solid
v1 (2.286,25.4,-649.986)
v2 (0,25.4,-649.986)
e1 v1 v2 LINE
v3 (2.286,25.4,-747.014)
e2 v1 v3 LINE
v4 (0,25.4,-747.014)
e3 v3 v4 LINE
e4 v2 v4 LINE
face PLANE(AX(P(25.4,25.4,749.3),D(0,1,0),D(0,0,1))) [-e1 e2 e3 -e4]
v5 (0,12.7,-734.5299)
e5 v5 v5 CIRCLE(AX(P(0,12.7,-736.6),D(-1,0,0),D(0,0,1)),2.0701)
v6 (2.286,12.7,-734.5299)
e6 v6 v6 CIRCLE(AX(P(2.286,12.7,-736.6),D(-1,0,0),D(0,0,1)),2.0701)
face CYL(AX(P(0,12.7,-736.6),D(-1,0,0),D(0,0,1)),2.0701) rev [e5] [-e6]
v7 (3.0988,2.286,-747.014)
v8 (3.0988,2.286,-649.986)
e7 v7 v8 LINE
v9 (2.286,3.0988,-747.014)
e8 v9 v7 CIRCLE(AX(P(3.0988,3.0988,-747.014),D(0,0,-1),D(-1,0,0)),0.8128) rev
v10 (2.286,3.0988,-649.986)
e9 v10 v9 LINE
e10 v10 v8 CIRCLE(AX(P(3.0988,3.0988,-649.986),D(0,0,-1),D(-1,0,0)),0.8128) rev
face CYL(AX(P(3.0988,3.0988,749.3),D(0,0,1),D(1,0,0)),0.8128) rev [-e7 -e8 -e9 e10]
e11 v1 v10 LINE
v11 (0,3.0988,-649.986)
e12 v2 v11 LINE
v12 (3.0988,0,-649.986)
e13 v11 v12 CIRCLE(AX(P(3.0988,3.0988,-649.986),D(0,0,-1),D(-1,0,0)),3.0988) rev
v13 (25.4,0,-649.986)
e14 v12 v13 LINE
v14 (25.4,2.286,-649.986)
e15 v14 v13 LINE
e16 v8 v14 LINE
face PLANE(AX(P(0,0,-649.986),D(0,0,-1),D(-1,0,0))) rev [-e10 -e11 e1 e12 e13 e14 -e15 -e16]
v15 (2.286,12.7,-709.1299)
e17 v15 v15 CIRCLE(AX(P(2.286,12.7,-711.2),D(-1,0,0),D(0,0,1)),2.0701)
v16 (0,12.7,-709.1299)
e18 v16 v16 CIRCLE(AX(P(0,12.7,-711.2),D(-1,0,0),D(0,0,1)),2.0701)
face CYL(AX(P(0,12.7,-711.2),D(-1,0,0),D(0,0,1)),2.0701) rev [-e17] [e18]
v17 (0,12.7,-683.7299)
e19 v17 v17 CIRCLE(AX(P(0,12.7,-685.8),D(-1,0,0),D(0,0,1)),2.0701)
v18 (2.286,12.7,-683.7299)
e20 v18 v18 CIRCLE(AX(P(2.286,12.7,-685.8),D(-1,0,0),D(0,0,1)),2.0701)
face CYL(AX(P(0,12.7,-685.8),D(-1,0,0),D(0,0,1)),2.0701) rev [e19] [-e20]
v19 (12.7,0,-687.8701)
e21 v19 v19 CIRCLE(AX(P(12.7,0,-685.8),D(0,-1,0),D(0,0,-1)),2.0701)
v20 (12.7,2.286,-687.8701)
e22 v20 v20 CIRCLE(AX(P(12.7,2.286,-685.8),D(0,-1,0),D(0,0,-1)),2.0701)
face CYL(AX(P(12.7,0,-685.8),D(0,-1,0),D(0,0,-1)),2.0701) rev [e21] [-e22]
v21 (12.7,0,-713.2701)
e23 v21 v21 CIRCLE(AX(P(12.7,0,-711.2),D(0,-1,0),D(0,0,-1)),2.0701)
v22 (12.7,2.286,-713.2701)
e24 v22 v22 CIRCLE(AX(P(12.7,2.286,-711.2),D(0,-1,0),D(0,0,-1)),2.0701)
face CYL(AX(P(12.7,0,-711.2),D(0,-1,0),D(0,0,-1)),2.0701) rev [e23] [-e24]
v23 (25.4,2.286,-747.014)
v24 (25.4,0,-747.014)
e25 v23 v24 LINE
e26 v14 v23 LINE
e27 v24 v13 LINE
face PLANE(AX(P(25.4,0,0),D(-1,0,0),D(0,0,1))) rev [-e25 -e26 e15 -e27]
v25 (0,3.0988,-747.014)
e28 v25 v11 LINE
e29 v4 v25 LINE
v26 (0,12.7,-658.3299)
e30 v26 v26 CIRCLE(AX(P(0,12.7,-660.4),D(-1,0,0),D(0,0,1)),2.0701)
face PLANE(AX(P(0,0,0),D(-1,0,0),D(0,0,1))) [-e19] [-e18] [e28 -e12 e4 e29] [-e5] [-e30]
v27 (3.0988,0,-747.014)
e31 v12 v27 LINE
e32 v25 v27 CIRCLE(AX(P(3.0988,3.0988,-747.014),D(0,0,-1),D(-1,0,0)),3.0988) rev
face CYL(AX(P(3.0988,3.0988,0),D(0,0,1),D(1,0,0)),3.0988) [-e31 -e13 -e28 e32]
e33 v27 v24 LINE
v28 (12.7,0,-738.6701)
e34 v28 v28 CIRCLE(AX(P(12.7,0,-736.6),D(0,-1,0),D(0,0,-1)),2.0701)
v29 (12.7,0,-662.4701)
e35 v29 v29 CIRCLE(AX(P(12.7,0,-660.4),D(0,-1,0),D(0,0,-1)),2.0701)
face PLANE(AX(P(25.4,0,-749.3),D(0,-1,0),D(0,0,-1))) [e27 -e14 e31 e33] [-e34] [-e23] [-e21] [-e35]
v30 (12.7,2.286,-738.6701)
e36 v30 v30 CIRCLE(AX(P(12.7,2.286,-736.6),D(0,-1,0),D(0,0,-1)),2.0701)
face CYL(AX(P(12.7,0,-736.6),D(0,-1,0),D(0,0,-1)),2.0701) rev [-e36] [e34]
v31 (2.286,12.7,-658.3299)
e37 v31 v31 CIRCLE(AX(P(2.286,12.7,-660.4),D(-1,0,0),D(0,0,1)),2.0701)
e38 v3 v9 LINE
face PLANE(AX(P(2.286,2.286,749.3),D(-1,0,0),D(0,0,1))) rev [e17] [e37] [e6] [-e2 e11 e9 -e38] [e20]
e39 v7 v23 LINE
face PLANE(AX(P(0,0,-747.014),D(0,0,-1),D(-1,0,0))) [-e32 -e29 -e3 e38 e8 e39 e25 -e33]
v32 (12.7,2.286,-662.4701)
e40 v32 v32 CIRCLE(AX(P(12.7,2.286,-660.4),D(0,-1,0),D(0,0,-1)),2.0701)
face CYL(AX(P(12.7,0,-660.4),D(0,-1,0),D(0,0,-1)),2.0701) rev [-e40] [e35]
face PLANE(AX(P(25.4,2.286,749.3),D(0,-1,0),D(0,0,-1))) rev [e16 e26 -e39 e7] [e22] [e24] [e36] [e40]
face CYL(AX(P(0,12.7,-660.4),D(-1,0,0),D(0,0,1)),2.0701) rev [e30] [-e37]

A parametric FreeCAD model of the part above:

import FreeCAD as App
import Part
import Sketcher
Q = App.Units.Quantity


def edges_at(feature, points):
    """Names of the edges that pass closest to the given points."""
    edges = feature.Shape.Edges
    near = lambda p: min(range(len(edges)), key=lambda i: edges[i].distToShape(Part.Vertex(*p))[0])
    return sorted({f"Edge{near(p) + 1}" for p in points})

doc = App.newDocument("Part")
body = doc.addObject("PartDesign::Body", "Body")

# Sketch on YZ plane
sketch1 = body.newObject("Sketcher::SketchObject", "Sketch")
sketch1.AttachmentSupport = (doc.getObject("YZ_Plane"), [""])
sketch1.MapMode = "FlatFace"
sketch1.addGeometry([
    Part.LineSegment(App.Vector(25, 749, 0), App.Vector(25, -749, 0)),
    Part.LineSegment(App.Vector(25, -749, 0), App.Vector(0, -749, 0)),
    Part.LineSegment(App.Vector(0, -749, 0), App.Vector(0, 749, 0)),
    Part.LineSegment(App.Vector(0, 749, 0), App.Vector(25, 749, 0)),
], False)
sketch1.addConstraint([
    Sketcher.Constraint("Coincident", 0, 2, 1, 1),
    Sketcher.Constraint("Coincident", 1, 2, 2, 1),
    Sketcher.Constraint("Coincident", 2, 2, 3, 1),
    Sketcher.Constraint("Coincident", 3, 2, 0, 1),
    Sketcher.Constraint("Vertical", 0),
    Sketcher.Constraint("Horizontal", 1),
    Sketcher.Constraint("Vertical", 2),
    Sketcher.Constraint("Horizontal", 3),
    Sketcher.Constraint("Symmetric", 1, 2, 2, 2, -1, 1),
    Sketcher.Constraint("DistanceX", 1, 2, 1, 1, Q("1 in")),
    Sketcher.Constraint("DistanceY", 0, 2, 0, 1, Q("59 in")),
])
pad1 = body.newObject("PartDesign::Pad", "Pad")
pad1.Profile = sketch1
pad1.Length = Q("1 in")

# Sketch on XY plane
sketch2 = body.newObject("Sketcher::SketchObject", "Sketch001")
sketch2.AttachmentSupport = (doc.getObject("XY_Plane"), [""])
sketch2.MapMode = "FlatFace"
sketch2.AttachmentOffset = App.Placement(App.Vector(0, 0, -29.5 * 25.4), App.Rotation())
sketch2.addGeometry([
    Part.LineSegment(App.Vector(25, 25, 0), App.Vector(25, 2, 0)),
    Part.LineSegment(App.Vector(25, 2, 0), App.Vector(2, 2, 0)),
    Part.LineSegment(App.Vector(2, 2, 0), App.Vector(2, 25, 0)),
    Part.LineSegment(App.Vector(2, 25, 0), App.Vector(25, 25, 0)),
], False)
sketch2.addConstraint([
    Sketcher.Constraint("Coincident", 0, 2, 1, 1),
    Sketcher.Constraint("Coincident", 1, 2, 2, 1),
    Sketcher.Constraint("Coincident", 2, 2, 3, 1),
    Sketcher.Constraint("Coincident", 3, 2, 0, 1),
    Sketcher.Constraint("Vertical", 0),
    Sketcher.Constraint("Horizontal", 1),
    Sketcher.Constraint("Vertical", 2),
    Sketcher.Constraint("Horizontal", 3),
    Sketcher.Constraint("Equal", 3, 0),
    Sketcher.Constraint("DistanceX", -1, 1, 0, 2, Q("1 in")),
    Sketcher.Constraint("DistanceY", -1, 1, 2, 2, Q("1 in")),
    Sketcher.Constraint("DistanceX", 1, 2, 1, 1, Q("0.91 in")),
])
pocket1 = body.newObject("PartDesign::Pocket", "Pocket")
pocket1.Profile = sketch2
pocket1.Type = "ThroughAll"
pocket1.Reversed = True

# Sketch on XZ plane
sketch3 = body.newObject("Sketcher::SketchObject", "Sketch002")
sketch3.AttachmentSupport = (doc.getObject("XZ_Plane"), [""])
sketch3.MapMode = "FlatFace"
sketch3.addGeometry([
    Part.Circle(App.Vector(12.7, -736.6, 0), App.Vector(0, 0, 1), 2.1),  # 0
    Part.Circle(App.Vector(12.7, -711.2, 0), App.Vector(0, 0, 1), 2.1),  # 1
    Part.Circle(App.Vector(12.7, -685.8, 0), App.Vector(0, 0, 1), 2.1),  # 2
    Part.Circle(App.Vector(12.7, -660.4, 0), App.Vector(0, 0, 1), 2.1),  # 3
    Part.Circle(App.Vector(12.7, -635, 0), App.Vector(0, 0, 1), 2.1),  # 4
    Part.Circle(App.Vector(12.7, -609.6, 0), App.Vector(0, 0, 1), 2.1),  # 5
    Part.Circle(App.Vector(12.7, -584.2, 0), App.Vector(0, 0, 1), 2.1),  # 6
    Part.Circle(App.Vector(12.7, -558.8, 0), App.Vector(0, 0, 1), 2.1),  # 7
    Part.Circle(App.Vector(12.7, -533.4, 0), App.Vector(0, 0, 1), 2.1),  # 8
    Part.Circle(App.Vector(12.7, -508, 0), App.Vector(0, 0, 1), 2.1),  # 9
    Part.Circle(App.Vector(12.7, -482.6, 0), App.Vector(0, 0, 1), 2.1),  # 10
    Part.Circle(App.Vector(12.7, -457.2, 0), App.Vector(0, 0, 1), 2.1),  # 11
    Part.Circle(App.Vector(12.7, -431.8, 0), App.Vector(0, 0, 1), 2.1),  # 12
    Part.Circle(App.Vector(12.7, -406.4, 0), App.Vector(0, 0, 1), 2.1),  # 13
    Part.Circle(App.Vector(12.7, -381, 0), App.Vector(0, 0, 1), 2.1),  # 14
    Part.Circle(App.Vector(12.7, -355.6, 0), App.Vector(0, 0, 1), 2.1),  # 15
    Part.Circle(App.Vector(12.7, -330.2, 0), App.Vector(0, 0, 1), 2.1),  # 16
    Part.Circle(App.Vector(12.7, -304.8, 0), App.Vector(0, 0, 1), 2.1),  # 17
    Part.Circle(App.Vector(12.7, -279.4, 0), App.Vector(0, 0, 1), 2.1),  # 18
    Part.Circle(App.Vector(12.7, -254, 0), App.Vector(0, 0, 1), 2.1),  # 19
    Part.Circle(App.Vector(12.7, -228.6, 0), App.Vector(0, 0, 1), 2.1),  # 20
    Part.Circle(App.Vector(12.7, -203.2, 0), App.Vector(0, 0, 1), 2.1),  # 21
    Part.Circle(App.Vector(12.7, -177.8, 0), App.Vector(0, 0, 1), 2.1),  # 22
    Part.Circle(App.Vector(12.7, -152.4, 0), App.Vector(0, 0, 1), 2.1),  # 23
    Part.Circle(App.Vector(12.7, -127, 0), App.Vector(0, 0, 1), 2.1),  # 24
    Part.Circle(App.Vector(12.7, -101.6, 0), App.Vector(0, 0, 1), 2.1),  # 25
    Part.Circle(App.Vector(12.7, -76.2, 0), App.Vector(0, 0, 1), 2.1),  # 26
    Part.Circle(App.Vector(12.7, -50.8, 0), App.Vector(0, 0, 1), 2.1),  # 27
    Part.Circle(App.Vector(12.7, -25.4, 0), App.Vector(0, 0, 1), 2.1),  # 28
    Part.Circle(App.Vector(12.7, 0, 0), App.Vector(0, 0, 1), 2.1),  # 29
    Part.Circle(App.Vector(12.7, 25.4, 0), App.Vector(0, 0, 1), 2.1),  # 30
    Part.Circle(App.Vector(12.7, 50.8, 0), App.Vector(0, 0, 1), 2.1),  # 31
    Part.Circle(App.Vector(12.7, 76.2, 0), App.Vector(0, 0, 1), 2.1),  # 32
    Part.Circle(App.Vector(12.7, 101.6, 0), App.Vector(0, 0, 1), 2.1),  # 33
    Part.Circle(App.Vector(12.7, 127, 0), App.Vector(0, 0, 1), 2.1),  # 34
    Part.Circle(App.Vector(12.7, 152.4, 0), App.Vector(0, 0, 1), 2.1),  # 35
    Part.Circle(App.Vector(12.7, 177.8, 0), App.Vector(0, 0, 1), 2.1),  # 36
    Part.Circle(App.Vector(12.7, 203.2, 0), App.Vector(0, 0, 1), 2.1),  # 37
    Part.Circle(App.Vector(12.7, 228.6, 0), App.Vector(0, 0, 1), 2.1),  # 38
    Part.Circle(App.Vector(12.7, 254, 0), App.Vector(0, 0, 1), 2.1),  # 39
    Part.Circle(App.Vector(12.7, 279.4, 0), App.Vector(0, 0, 1), 2.1),  # 40
    Part.Circle(App.Vector(12.7, 304.8, 0), App.Vector(0, 0, 1), 2.1),  # 41
    Part.Circle(App.Vector(12.7, 330.2, 0), App.Vector(0, 0, 1), 2.1),  # 42
    Part.Circle(App.Vector(12.7, 355.6, 0), App.Vector(0, 0, 1), 2.1),  # 43
    Part.Circle(App.Vector(12.7, 381, 0), App.Vector(0, 0, 1), 2.1),  # 44
    Part.Circle(App.Vector(12.7, 406.4, 0), App.Vector(0, 0, 1), 2.1),  # 45
    Part.Circle(App.Vector(12.7, 431.8, 0), App.Vector(0, 0, 1), 2.1),  # 46
    Part.Circle(App.Vector(12.7, 457.2, 0), App.Vector(0, 0, 1), 2.1),  # 47
    Part.Circle(App.Vector(12.7, 482.6, 0), App.Vector(0, 0, 1), 2.1),  # 48
    Part.Circle(App.Vector(12.7, 508, 0), App.Vector(0, 0, 1), 2.1),  # 49
    Part.Circle(App.Vector(12.7, 533.4, 0), App.Vector(0, 0, 1), 2.1),  # 50
    Part.Circle(App.Vector(12.7, 558.8, 0), App.Vector(0, 0, 1), 2.1),  # 51
    Part.Circle(App.Vector(12.7, 584.2, 0), App.Vector(0, 0, 1), 2.1),  # 52
    Part.Circle(App.Vector(12.7, 609.6, 0), App.Vector(0, 0, 1), 2.1),  # 53
    Part.Circle(App.Vector(12.7, 635, 0), App.Vector(0, 0, 1), 2.1),  # 54
    Part.Circle(App.Vector(12.7, 660.4, 0), App.Vector(0, 0, 1), 2.1),  # 55
    Part.Circle(App.Vector(12.7, 685.8, 0), App.Vector(0, 0, 1), 2.1),  # 56
    Part.Circle(App.Vector(12.7, 711.2, 0), App.Vector(0, 0, 1), 2.1),  # 57
    Part.Circle(App.Vector(12.7, 736.6, 0), App.Vector(0, 0, 1), 2.1),  # 58
], False)
sketch3.addConstraint([
    Sketcher.Constraint("Equal", 0, 1),
    Sketcher.Constraint("Equal", 1, 2),
    Sketcher.Constraint("Equal", 2, 3),
    Sketcher.Constraint("Equal", 3, 4),
    Sketcher.Constraint("Equal", 4, 5),
    Sketcher.Constraint("Equal", 5, 6),
    Sketcher.Constraint("Equal", 6, 7),
    Sketcher.Constraint("Equal", 7, 8),
    Sketcher.Constraint("Equal", 8, 9),
    Sketcher.Constraint("Equal", 9, 10),
    Sketcher.Constraint("Equal", 10, 11),
    Sketcher.Constraint("Equal", 11, 12),
    Sketcher.Constraint("Equal", 12, 13),
    Sketcher.Constraint("Equal", 13, 14),
    Sketcher.Constraint("Equal", 14, 15),
    Sketcher.Constraint("Equal", 15, 16),
    Sketcher.Constraint("Equal", 16, 17),
    Sketcher.Constraint("Equal", 17, 18),
    Sketcher.Constraint("Equal", 18, 19),
    Sketcher.Constraint("Equal", 19, 20),
    Sketcher.Constraint("Equal", 20, 21),
    Sketcher.Constraint("Equal", 21, 22),
    Sketcher.Constraint("Equal", 22, 23),
    Sketcher.Constraint("Equal", 23, 24),
    Sketcher.Constraint("Equal", 24, 25),
    Sketcher.Constraint("Equal", 25, 26),
    Sketcher.Constraint("Equal", 26, 27),
    Sketcher.Constraint("Equal", 27, 28),
    Sketcher.Constraint("Equal", 28, 29),
    Sketcher.Constraint("Equal", 29, 30),
    Sketcher.Constraint("Equal", 30, 31),
    Sketcher.Constraint("Equal", 31, 32),
    Sketcher.Constraint("Equal", 32, 33),
    Sketcher.Constraint("Equal", 33, 34),
    Sketcher.Constraint("Equal", 34, 35),
    Sketcher.Constraint("Equal", 35, 36),
    Sketcher.Constraint("Equal", 36, 37),
    Sketcher.Constraint("Equal", 37, 38),
    Sketcher.Constraint("Equal", 38, 39),
    Sketcher.Constraint("Equal", 39, 40),
    Sketcher.Constraint("Equal", 40, 41),
    Sketcher.Constraint("Equal", 41, 42),
    Sketcher.Constraint("Equal", 42, 43),
    Sketcher.Constraint("Equal", 43, 44),
    Sketcher.Constraint("Equal", 44, 45),
    Sketcher.Constraint("Equal", 45, 46),
    Sketcher.Constraint("Equal", 46, 47),
    Sketcher.Constraint("Equal", 47, 48),
    Sketcher.Constraint("Equal", 48, 49),
    Sketcher.Constraint("Equal", 49, 50),
    Sketcher.Constraint("Equal", 50, 51),
    Sketcher.Constraint("Equal", 51, 52),
    Sketcher.Constraint("Equal", 52, 53),
    Sketcher.Constraint("Equal", 53, 54),
    Sketcher.Constraint("Equal", 54, 55),
    Sketcher.Constraint("Equal", 55, 56),
    Sketcher.Constraint("Equal", 56, 57),
    Sketcher.Constraint("Equal", 57, 58),
    Sketcher.Constraint("Symmetric", 28, 3, 30, 3, -1),
    Sketcher.Constraint("Symmetric", 27, 3, 31, 3, -1),
    Sketcher.Constraint("Symmetric", 26, 3, 32, 3, -1),
    Sketcher.Constraint("Symmetric", 25, 3, 33, 3, -1),
    Sketcher.Constraint("Symmetric", 24, 3, 34, 3, -1),
    Sketcher.Constraint("Symmetric", 23, 3, 35, 3, -1),
    Sketcher.Constraint("Symmetric", 22, 3, 36, 3, -1),
    Sketcher.Constraint("Symmetric", 21, 3, 37, 3, -1),
    Sketcher.Constraint("Symmetric", 20, 3, 38, 3, -1),
    Sketcher.Constraint("Symmetric", 19, 3, 39, 3, -1),
    Sketcher.Constraint("Symmetric", 18, 3, 40, 3, -1),
    Sketcher.Constraint("Symmetric", 17, 3, 41, 3, -1),
    Sketcher.Constraint("Symmetric", 16, 3, 42, 3, -1),
    Sketcher.Constraint("Symmetric", 15, 3, 43, 3, -1),
    Sketcher.Constraint("Symmetric", 14, 3, 44, 3, -1),
    Sketcher.Constraint("Symmetric", 13, 3, 45, 3, -1),
    Sketcher.Constraint("Symmetric", 12, 3, 46, 3, -1),
    Sketcher.Constraint("Symmetric", 11, 3, 47, 3, -1),
    Sketcher.Constraint("Symmetric", 10, 3, 48, 3, -1),
    Sketcher.Constraint("Symmetric", 9, 3, 49, 3, -1),
    Sketcher.Constraint("Symmetric", 8, 3, 50, 3, -1),
    Sketcher.Constraint("Symmetric", 7, 3, 51, 3, -1),
    Sketcher.Constraint("Symmetric", 6, 3, 52, 3, -1),
    Sketcher.Constraint("Symmetric", 5, 3, 53, 3, -1),
    Sketcher.Constraint("Symmetric", 4, 3, 54, 3, -1),
    Sketcher.Constraint("Symmetric", 3, 3, 55, 3, -1),
    Sketcher.Constraint("Symmetric", 2, 3, 56, 3, -1),
    Sketcher.Constraint("Symmetric", 1, 3, 57, 3, -1),
    Sketcher.Constraint("Symmetric", 0, 3, 58, 3, -1),
    Sketcher.Constraint("PointOnObject", 29, 3, -1),
    Sketcher.Constraint("Vertical", 0, 3, 1, 3),
    Sketcher.Constraint("Vertical", 1, 3, 2, 3),
    Sketcher.Constraint("Vertical", 2, 3, 3, 3),
    Sketcher.Constraint("Vertical", 3, 3, 4, 3),
    Sketcher.Constraint("Vertical", 4, 3, 5, 3),
    Sketcher.Constraint("Vertical", 5, 3, 6, 3),
    Sketcher.Constraint("Vertical", 6, 3, 7, 3),
    Sketcher.Constraint("Vertical", 7, 3, 8, 3),
    Sketcher.Constraint("Vertical", 8, 3, 9, 3),
    Sketcher.Constraint("Vertical", 9, 3, 10, 3),
    Sketcher.Constraint("Vertical", 10, 3, 11, 3),
    Sketcher.Constraint("Vertical", 11, 3, 12, 3),
    Sketcher.Constraint("Vertical", 12, 3, 13, 3),
    Sketcher.Constraint("Vertical", 13, 3, 14, 3),
    Sketcher.Constraint("Vertical", 14, 3, 15, 3),
    Sketcher.Constraint("Vertical", 15, 3, 16, 3),
    Sketcher.Constraint("Vertical", 16, 3, 17, 3),
    Sketcher.Constraint("Vertical", 17, 3, 18, 3),
    Sketcher.Constraint("Vertical", 18, 3, 19, 3),
    Sketcher.Constraint("Vertical", 19, 3, 20, 3),
    Sketcher.Constraint("Vertical", 20, 3, 21, 3),
    Sketcher.Constraint("Vertical", 21, 3, 22, 3),
    Sketcher.Constraint("Vertical", 22, 3, 23, 3),
    Sketcher.Constraint("Vertical", 23, 3, 24, 3),
    Sketcher.Constraint("Vertical", 24, 3, 25, 3),
    Sketcher.Constraint("Vertical", 25, 3, 26, 3),
    Sketcher.Constraint("Vertical", 26, 3, 27, 3),
    Sketcher.Constraint("Vertical", 27, 3, 28, 3),
    Sketcher.Constraint("Vertical", 28, 3, 29, 3),
    Sketcher.Constraint("Diameter", 0, Q("0.163 in")),
    Sketcher.Constraint("DistanceY", 0, 3, -1, 1, Q("29 in")),
    Sketcher.Constraint("DistanceY", 1, 3, -1, 1, Q("28 in")),
    Sketcher.Constraint("DistanceY", 2, 3, -1, 1, Q("27 in")),
    Sketcher.Constraint("DistanceY", 3, 3, -1, 1, Q("26 in")),
    Sketcher.Constraint("DistanceY", 4, 3, -1, 1, Q("25 in")),
    Sketcher.Constraint("DistanceY", 5, 3, -1, 1, Q("24 in")),
    Sketcher.Constraint("DistanceY", 6, 3, -1, 1, Q("23 in")),
    Sketcher.Constraint("DistanceY", 7, 3, -1, 1, Q("22 in")),
    Sketcher.Constraint("DistanceY", 8, 3, -1, 1, Q("21 in")),
    Sketcher.Constraint("DistanceY", 9, 3, -1, 1, Q("20 in")),
    Sketcher.Constraint("DistanceY", 10, 3, -1, 1, Q("19 in")),
    Sketcher.Constraint("DistanceY", 11, 3, -1, 1, Q("18 in")),
    Sketcher.Constraint("DistanceY", 12, 3, -1, 1, Q("17 in")),
    Sketcher.Constraint("DistanceY", 13, 3, -1, 1, Q("16 in")),
    Sketcher.Constraint("DistanceY", 14, 3, -1, 1, Q("15 in")),
    Sketcher.Constraint("DistanceY", 15, 3, -1, 1, Q("14 in")),
    Sketcher.Constraint("DistanceY", 16, 3, -1, 1, Q("13 in")),
    Sketcher.Constraint("DistanceY", 17, 3, -1, 1, Q("12 in")),
    Sketcher.Constraint("DistanceY", 18, 3, -1, 1, Q("11 in")),
    Sketcher.Constraint("DistanceY", 19, 3, -1, 1, Q("10 in")),
    Sketcher.Constraint("DistanceY", 20, 3, -1, 1, Q("9 in")),
    Sketcher.Constraint("DistanceY", 21, 3, -1, 1, Q("8 in")),
    Sketcher.Constraint("DistanceY", 22, 3, -1, 1, Q("7 in")),
    Sketcher.Constraint("DistanceY", 23, 3, -1, 1, Q("6 in")),
    Sketcher.Constraint("DistanceY", 24, 3, -1, 1, Q("5 in")),
    Sketcher.Constraint("DistanceY", 25, 3, -1, 1, Q("4 in")),
    Sketcher.Constraint("DistanceY", 26, 3, -1, 1, Q("3 in")),
    Sketcher.Constraint("DistanceY", 27, 3, -1, 1, Q("2 in")),
    Sketcher.Constraint("DistanceY", 28, 3, -1, 1, Q("1 in")),
    Sketcher.Constraint("DistanceX", -1, 1, 0, 3, Q("0.5 in")),
])
doc.recompute()
hole = body.newObject("PartDesign::Hole", "Hole")
hole.Profile = sketch3
hole.ThreadType = "None"
hole.Diameter = Q("0.163 in")
hole.DepthType = "Dimension"
hole.Depth = Q("1 in")
hole.DrillPoint = "Flat"

# Sketch on YZ plane
sketch4 = body.newObject("Sketcher::SketchObject", "Sketch003")
sketch4.AttachmentSupport = (doc.getObject("YZ_Plane"), [""])
sketch4.MapMode = "FlatFace"
sketch4.addGeometry([
    Part.Circle(App.Vector(12.7, 711.2, 0), App.Vector(0, 0, 1), 2.1),  # 0
    Part.Circle(App.Vector(12.7, 736.6, 0), App.Vector(0, 0, 1), 2.1),  # 1
    Part.Circle(App.Vector(12.7, 685.8, 0), App.Vector(0, 0, 1), 2.1),  # 2
    Part.Circle(App.Vector(12.7, 660.4, 0), App.Vector(0, 0, 1), 2.1),  # 3
    Part.Circle(App.Vector(12.7, 635, 0), App.Vector(0, 0, 1), 2.1),  # 4
    Part.Circle(App.Vector(12.7, 609.6, 0), App.Vector(0, 0, 1), 2.1),  # 5
    Part.Circle(App.Vector(12.7, 584.2, 0), App.Vector(0, 0, 1), 2.1),  # 6
    Part.Circle(App.Vector(12.7, 558.8, 0), App.Vector(0, 0, 1), 2.1),  # 7
    Part.Circle(App.Vector(12.7, 533.4, 0), App.Vector(0, 0, 1), 2.1),  # 8
    Part.Circle(App.Vector(12.7, 508, 0), App.Vector(0, 0, 1), 2.1),  # 9
    Part.Circle(App.Vector(12.7, 482.6, 0), App.Vector(0, 0, 1), 2.1),  # 10
    Part.Circle(App.Vector(12.7, 457.2, 0), App.Vector(0, 0, 1), 2.1),  # 11
    Part.Circle(App.Vector(12.7, 431.8, 0), App.Vector(0, 0, 1), 2.1),  # 12
    Part.Circle(App.Vector(12.7, 406.4, 0), App.Vector(0, 0, 1), 2.1),  # 13
    Part.Circle(App.Vector(12.7, 381, 0), App.Vector(0, 0, 1), 2.1),  # 14
    Part.Circle(App.Vector(12.7, 355.6, 0), App.Vector(0, 0, 1), 2.1),  # 15
    Part.Circle(App.Vector(12.7, 330.2, 0), App.Vector(0, 0, 1), 2.1),  # 16
    Part.Circle(App.Vector(12.7, 304.8, 0), App.Vector(0, 0, 1), 2.1),  # 17
    Part.Circle(App.Vector(12.7, 279.4, 0), App.Vector(0, 0, 1), 2.1),  # 18
    Part.Circle(App.Vector(12.7, 254, 0), App.Vector(0, 0, 1), 2.1),  # 19
    Part.Circle(App.Vector(12.7, 228.6, 0), App.Vector(0, 0, 1), 2.1),  # 20
    Part.Circle(App.Vector(12.7, 203.2, 0), App.Vector(0, 0, 1), 2.1),  # 21
    Part.Circle(App.Vector(12.7, 177.8, 0), App.Vector(0, 0, 1), 2.1),  # 22
    Part.Circle(App.Vector(12.7, 152.4, 0), App.Vector(0, 0, 1), 2.1),  # 23
    Part.Circle(App.Vector(12.7, 127, 0), App.Vector(0, 0, 1), 2.1),  # 24
    Part.Circle(App.Vector(12.7, 101.6, 0), App.Vector(0, 0, 1), 2.1),  # 25
    Part.Circle(App.Vector(12.7, 76.2, 0), App.Vector(0, 0, 1), 2.1),  # 26
    Part.Circle(App.Vector(12.7, 50.8, 0), App.Vector(0, 0, 1), 2.1),  # 27
    Part.Circle(App.Vector(12.7, 25.4, 0), App.Vector(0, 0, 1), 2.1),  # 28
    Part.Circle(App.Vector(12.7, 0, 0), App.Vector(0, 0, 1), 2.1),  # 29
    Part.Circle(App.Vector(12.7, -25.4, 0), App.Vector(0, 0, 1), 2.1),  # 30
    Part.Circle(App.Vector(12.7, -50.8, 0), App.Vector(0, 0, 1), 2.1),  # 31
    Part.Circle(App.Vector(12.7, -76.2, 0), App.Vector(0, 0, 1), 2.1),  # 32
    Part.Circle(App.Vector(12.7, -101.6, 0), App.Vector(0, 0, 1), 2.1),  # 33
    Part.Circle(App.Vector(12.7, -127, 0), App.Vector(0, 0, 1), 2.1),  # 34
    Part.Circle(App.Vector(12.7, -152.4, 0), App.Vector(0, 0, 1), 2.1),  # 35
    Part.Circle(App.Vector(12.7, -177.8, 0), App.Vector(0, 0, 1), 2.1),  # 36
    Part.Circle(App.Vector(12.7, -203.2, 0), App.Vector(0, 0, 1), 2.1),  # 37
    Part.Circle(App.Vector(12.7, -228.6, 0), App.Vector(0, 0, 1), 2.1),  # 38
    Part.Circle(App.Vector(12.7, -254, 0), App.Vector(0, 0, 1), 2.1),  # 39
    Part.Circle(App.Vector(12.7, -279.4, 0), App.Vector(0, 0, 1), 2.1),  # 40
    Part.Circle(App.Vector(12.7, -304.8, 0), App.Vector(0, 0, 1), 2.1),  # 41
    Part.Circle(App.Vector(12.7, -330.2, 0), App.Vector(0, 0, 1), 2.1),  # 42
    Part.Circle(App.Vector(12.7, -355.6, 0), App.Vector(0, 0, 1), 2.1),  # 43
    Part.Circle(App.Vector(12.7, -381, 0), App.Vector(0, 0, 1), 2.1),  # 44
    Part.Circle(App.Vector(12.7, -406.4, 0), App.Vector(0, 0, 1), 2.1),  # 45
    Part.Circle(App.Vector(12.7, -431.8, 0), App.Vector(0, 0, 1), 2.1),  # 46
    Part.Circle(App.Vector(12.7, -457.2, 0), App.Vector(0, 0, 1), 2.1),  # 47
    Part.Circle(App.Vector(12.7, -482.6, 0), App.Vector(0, 0, 1), 2.1),  # 48
    Part.Circle(App.Vector(12.7, -508, 0), App.Vector(0, 0, 1), 2.1),  # 49
    Part.Circle(App.Vector(12.7, -533.4, 0), App.Vector(0, 0, 1), 2.1),  # 50
    Part.Circle(App.Vector(12.7, -558.8, 0), App.Vector(0, 0, 1), 2.1),  # 51
    Part.Circle(App.Vector(12.7, -584.2, 0), App.Vector(0, 0, 1), 2.1),  # 52
    Part.Circle(App.Vector(12.7, -609.6, 0), App.Vector(0, 0, 1), 2.1),  # 53
    Part.Circle(App.Vector(12.7, -635, 0), App.Vector(0, 0, 1), 2.1),  # 54
    Part.Circle(App.Vector(12.7, -660.4, 0), App.Vector(0, 0, 1), 2.1),  # 55
    Part.Circle(App.Vector(12.7, -685.8, 0), App.Vector(0, 0, 1), 2.1),  # 56
    Part.Circle(App.Vector(12.7, -711.2, 0), App.Vector(0, 0, 1), 2.1),  # 57
    Part.Circle(App.Vector(12.7, -736.6, 0), App.Vector(0, 0, 1), 2.1),  # 58
], False)
sketch4.addConstraint([
    Sketcher.Constraint("Equal", 0, 1),
    Sketcher.Constraint("Equal", 1, 2),
    Sketcher.Constraint("Equal", 2, 3),
    Sketcher.Constraint("Equal", 3, 4),
    Sketcher.Constraint("Equal", 4, 5),
    Sketcher.Constraint("Equal", 5, 6),
    Sketcher.Constraint("Equal", 6, 7),
    Sketcher.Constraint("Equal", 7, 8),
    Sketcher.Constraint("Equal", 8, 9),
    Sketcher.Constraint("Equal", 9, 10),
    Sketcher.Constraint("Equal", 10, 11),
    Sketcher.Constraint("Equal", 11, 12),
    Sketcher.Constraint("Equal", 12, 13),
    Sketcher.Constraint("Equal", 13, 14),
    Sketcher.Constraint("Equal", 14, 15),
    Sketcher.Constraint("Equal", 15, 16),
    Sketcher.Constraint("Equal", 16, 17),
    Sketcher.Constraint("Equal", 17, 18),
    Sketcher.Constraint("Equal", 18, 19),
    Sketcher.Constraint("Equal", 19, 20),
    Sketcher.Constraint("Equal", 20, 21),
    Sketcher.Constraint("Equal", 21, 22),
    Sketcher.Constraint("Equal", 22, 23),
    Sketcher.Constraint("Equal", 23, 24),
    Sketcher.Constraint("Equal", 24, 25),
    Sketcher.Constraint("Equal", 25, 26),
    Sketcher.Constraint("Equal", 26, 27),
    Sketcher.Constraint("Equal", 27, 28),
    Sketcher.Constraint("Equal", 28, 29),
    Sketcher.Constraint("Equal", 29, 30),
    Sketcher.Constraint("Equal", 30, 31),
    Sketcher.Constraint("Equal", 31, 32),
    Sketcher.Constraint("Equal", 32, 33),
    Sketcher.Constraint("Equal", 33, 34),
    Sketcher.Constraint("Equal", 34, 35),
    Sketcher.Constraint("Equal", 35, 36),
    Sketcher.Constraint("Equal", 36, 37),
    Sketcher.Constraint("Equal", 37, 38),
    Sketcher.Constraint("Equal", 38, 39),
    Sketcher.Constraint("Equal", 39, 40),
    Sketcher.Constraint("Equal", 40, 41),
    Sketcher.Constraint("Equal", 41, 42),
    Sketcher.Constraint("Equal", 42, 43),
    Sketcher.Constraint("Equal", 43, 44),
    Sketcher.Constraint("Equal", 44, 45),
    Sketcher.Constraint("Equal", 45, 46),
    Sketcher.Constraint("Equal", 46, 47),
    Sketcher.Constraint("Equal", 47, 48),
    Sketcher.Constraint("Equal", 48, 49),
    Sketcher.Constraint("Equal", 49, 50),
    Sketcher.Constraint("Equal", 50, 51),
    Sketcher.Constraint("Equal", 51, 52),
    Sketcher.Constraint("Equal", 52, 53),
    Sketcher.Constraint("Equal", 53, 54),
    Sketcher.Constraint("Equal", 54, 55),
    Sketcher.Constraint("Equal", 55, 56),
    Sketcher.Constraint("Equal", 56, 57),
    Sketcher.Constraint("Equal", 57, 58),
    Sketcher.Constraint("Symmetric", 28, 3, 30, 3, -1),
    Sketcher.Constraint("Symmetric", 27, 3, 31, 3, -1),
    Sketcher.Constraint("Symmetric", 26, 3, 32, 3, -1),
    Sketcher.Constraint("Symmetric", 25, 3, 33, 3, -1),
    Sketcher.Constraint("Symmetric", 24, 3, 34, 3, -1),
    Sketcher.Constraint("Symmetric", 23, 3, 35, 3, -1),
    Sketcher.Constraint("Symmetric", 22, 3, 36, 3, -1),
    Sketcher.Constraint("Symmetric", 21, 3, 37, 3, -1),
    Sketcher.Constraint("Symmetric", 20, 3, 38, 3, -1),
    Sketcher.Constraint("Symmetric", 19, 3, 39, 3, -1),
    Sketcher.Constraint("Symmetric", 18, 3, 40, 3, -1),
    Sketcher.Constraint("Symmetric", 17, 3, 41, 3, -1),
    Sketcher.Constraint("Symmetric", 16, 3, 42, 3, -1),
    Sketcher.Constraint("Symmetric", 15, 3, 43, 3, -1),
    Sketcher.Constraint("Symmetric", 14, 3, 44, 3, -1),
    Sketcher.Constraint("Symmetric", 13, 3, 45, 3, -1),
    Sketcher.Constraint("Symmetric", 12, 3, 46, 3, -1),
    Sketcher.Constraint("Symmetric", 11, 3, 47, 3, -1),
    Sketcher.Constraint("Symmetric", 10, 3, 48, 3, -1),
    Sketcher.Constraint("Symmetric", 9, 3, 49, 3, -1),
    Sketcher.Constraint("Symmetric", 8, 3, 50, 3, -1),
    Sketcher.Constraint("Symmetric", 7, 3, 51, 3, -1),
    Sketcher.Constraint("Symmetric", 6, 3, 52, 3, -1),
    Sketcher.Constraint("Symmetric", 5, 3, 53, 3, -1),
    Sketcher.Constraint("Symmetric", 4, 3, 54, 3, -1),
    Sketcher.Constraint("Symmetric", 3, 3, 55, 3, -1),
    Sketcher.Constraint("Symmetric", 2, 3, 56, 3, -1),
    Sketcher.Constraint("Symmetric", 0, 3, 57, 3, -1),
    Sketcher.Constraint("Symmetric", 1, 3, 58, 3, -1),
    Sketcher.Constraint("PointOnObject", 29, 3, -1),
    Sketcher.Constraint("Vertical", 0, 3, 1, 3),
    Sketcher.Constraint("Vertical", 1, 3, 2, 3),
    Sketcher.Constraint("Vertical", 2, 3, 3, 3),
    Sketcher.Constraint("Vertical", 3, 3, 4, 3),
    Sketcher.Constraint("Vertical", 4, 3, 5, 3),
    Sketcher.Constraint("Vertical", 5, 3, 6, 3),
    Sketcher.Constraint("Vertical", 6, 3, 7, 3),
    Sketcher.Constraint("Vertical", 7, 3, 8, 3),
    Sketcher.Constraint("Vertical", 8, 3, 9, 3),
    Sketcher.Constraint("Vertical", 9, 3, 10, 3),
    Sketcher.Constraint("Vertical", 10, 3, 11, 3),
    Sketcher.Constraint("Vertical", 11, 3, 12, 3),
    Sketcher.Constraint("Vertical", 12, 3, 13, 3),
    Sketcher.Constraint("Vertical", 13, 3, 14, 3),
    Sketcher.Constraint("Vertical", 14, 3, 15, 3),
    Sketcher.Constraint("Vertical", 15, 3, 16, 3),
    Sketcher.Constraint("Vertical", 16, 3, 17, 3),
    Sketcher.Constraint("Vertical", 17, 3, 18, 3),
    Sketcher.Constraint("Vertical", 18, 3, 19, 3),
    Sketcher.Constraint("Vertical", 19, 3, 20, 3),
    Sketcher.Constraint("Vertical", 20, 3, 21, 3),
    Sketcher.Constraint("Vertical", 21, 3, 22, 3),
    Sketcher.Constraint("Vertical", 22, 3, 23, 3),
    Sketcher.Constraint("Vertical", 23, 3, 24, 3),
    Sketcher.Constraint("Vertical", 24, 3, 25, 3),
    Sketcher.Constraint("Vertical", 25, 3, 26, 3),
    Sketcher.Constraint("Vertical", 26, 3, 27, 3),
    Sketcher.Constraint("Vertical", 27, 3, 28, 3),
    Sketcher.Constraint("Vertical", 28, 3, 29, 3),
    Sketcher.Constraint("Diameter", 0, Q("0.163 in")),
    Sketcher.Constraint("DistanceY", -1, 1, 0, 3, Q("28 in")),
    Sketcher.Constraint("DistanceY", -1, 1, 1, 3, Q("29 in")),
    Sketcher.Constraint("DistanceY", -1, 1, 2, 3, Q("27 in")),
    Sketcher.Constraint("DistanceY", -1, 1, 3, 3, Q("26 in")),
    Sketcher.Constraint("DistanceY", -1, 1, 4, 3, Q("25 in")),
    Sketcher.Constraint("DistanceY", -1, 1, 5, 3, Q("24 in")),
    Sketcher.Constraint("DistanceY", -1, 1, 6, 3, Q("23 in")),
    Sketcher.Constraint("DistanceY", -1, 1, 7, 3, Q("22 in")),
    Sketcher.Constraint("DistanceY", -1, 1, 8, 3, Q("21 in")),
    Sketcher.Constraint("DistanceY", -1, 1, 9, 3, Q("20 in")),
    Sketcher.Constraint("DistanceY", -1, 1, 10, 3, Q("19 in")),
    Sketcher.Constraint("DistanceY", -1, 1, 11, 3, Q("18 in")),
    Sketcher.Constraint("DistanceY", -1, 1, 12, 3, Q("17 in")),
    Sketcher.Constraint("DistanceY", -1, 1, 13, 3, Q("16 in")),
    Sketcher.Constraint("DistanceY", -1, 1, 14, 3, Q("15 in")),
    Sketcher.Constraint("DistanceY", -1, 1, 15, 3, Q("14 in")),
    Sketcher.Constraint("DistanceY", -1, 1, 16, 3, Q("13 in")),
    Sketcher.Constraint("DistanceY", -1, 1, 17, 3, Q("12 in")),
    Sketcher.Constraint("DistanceY", -1, 1, 18, 3, Q("11 in")),
    Sketcher.Constraint("DistanceY", -1, 1, 19, 3, Q("10 in")),
    Sketcher.Constraint("DistanceY", -1, 1, 20, 3, Q("9 in")),
    Sketcher.Constraint("DistanceY", -1, 1, 21, 3, Q("8 in")),
    Sketcher.Constraint("DistanceY", -1, 1, 22, 3, Q("7 in")),
    Sketcher.Constraint("DistanceY", -1, 1, 23, 3, Q("6 in")),
    Sketcher.Constraint("DistanceY", -1, 1, 24, 3, Q("5 in")),
    Sketcher.Constraint("DistanceY", -1, 1, 25, 3, Q("4 in")),
    Sketcher.Constraint("DistanceY", -1, 1, 26, 3, Q("3 in")),
    Sketcher.Constraint("DistanceY", -1, 1, 27, 3, Q("2 in")),
    Sketcher.Constraint("DistanceY", -1, 1, 28, 3, Q("1 in")),
    Sketcher.Constraint("DistanceX", -1, 1, 0, 3, Q("0.5 in")),
])
doc.recompute()
hole2 = body.newObject("PartDesign::Hole", "Hole001")
hole2.Profile = sketch4
hole2.ThreadType = "None"
hole2.Diameter = Q("0.163 in")
hole2.DepthType = "Dimension"
hole2.Depth = Q("1 in")
hole2.DrillPoint = "Flat"
hole2.Reversed = True
doc.recompute()

chamfer = body.newObject("PartDesign::Chamfer", "Chamfer")
chamfer.Base = (hole2, edges_at(hole2, [
    (25.4, 1.143, -749.3),
    (1.143, 25.4, 749.3),
    (1.143, 25.4, -749.3),
    (25.4, 1.143, 749.3),
]))
chamfer.Size = Q("0.085 in")
doc.recompute()

fillet = body.newObject("PartDesign::Fillet", "Fillet")
fillet.Base = (chamfer, edges_at(chamfer, [(2.286, 2.286, 0)]))
fillet.Radius = Q("0.032 in")
doc.recompute()

fillet2 = body.newObject("PartDesign::Fillet", "Fillet001")
fillet2.Base = (fillet, edges_at(fillet, [(0, 0, 0)]))
fillet2.Radius = Q("0.122 in")

# Sketch on XY plane
sketch5 = body.newObject("Sketcher::SketchObject", "Sketch004")
sketch5.AttachmentSupport = (doc.getObject("XY_Plane"), [""])
sketch5.MapMode = "FlatFace"
sketch5.AttachmentOffset = App.Placement(App.Vector(0, 0, 29.5 * 25.4), App.Rotation())
sketch5.addGeometry([
    Part.LineSegment(App.Vector(-46, 43, 0), App.Vector(-46, -37, 0)),
    Part.LineSegment(App.Vector(-46, -37, 0), App.Vector(50, -37, 0)),
    Part.LineSegment(App.Vector(50, -37, 0), App.Vector(50, 43, 0)),
    Part.LineSegment(App.Vector(50, 43, 0), App.Vector(-46, 43, 0)),
], False)
sketch5.addConstraint([
    Sketcher.Constraint("Coincident", 0, 2, 1, 1),
    Sketcher.Constraint("Coincident", 1, 2, 2, 1),
    Sketcher.Constraint("Coincident", 2, 2, 3, 1),
    Sketcher.Constraint("Coincident", 3, 2, 0, 1),
    Sketcher.Constraint("Vertical", 0),
    Sketcher.Constraint("Horizontal", 1),
    Sketcher.Constraint("Vertical", 2),
    Sketcher.Constraint("Horizontal", 3),
    Sketcher.Constraint("DistanceY", 0, 2, 0, 1, 79.33833),
    Sketcher.Constraint("DistanceX", 1, 1, 1, 2, 95.882964),
    Sketcher.Constraint("DistanceX", 0, 2, -1, 1, 45.655482),
    Sketcher.Constraint("DistanceY", 0, 2, -1, 1, 36.570365),
])
pocket2 = body.newObject("PartDesign::Pocket", "Pocket001")
pocket2.Profile = sketch5
pocket2.Length = Q("55 in")

# Sketch on XY plane
sketch6 = body.newObject("Sketcher::SketchObject", "Sketch005")
sketch6.AttachmentSupport = (doc.getObject("XY_Plane"), [""])
sketch6.MapMode = "FlatFace"
sketch6.AttachmentOffset = App.Placement(App.Vector(0, 0, -25.5 * 25.4), App.Rotation())
sketch6.addGeometry([
    Part.LineSegment(App.Vector(-26, 31, 0), App.Vector(-26, -28, 0)),
    Part.LineSegment(App.Vector(-26, -28, 0), App.Vector(29, -28, 0)),
    Part.LineSegment(App.Vector(29, -28, 0), App.Vector(29, 31, 0)),
    Part.LineSegment(App.Vector(29, 31, 0), App.Vector(-26, 31, 0)),
], False)
sketch6.addConstraint([
    Sketcher.Constraint("Coincident", 0, 2, 1, 1),
    Sketcher.Constraint("Coincident", 1, 2, 2, 1),
    Sketcher.Constraint("Coincident", 2, 2, 3, 1),
    Sketcher.Constraint("Coincident", 3, 2, 0, 1),
    Sketcher.Constraint("Vertical", 0),
    Sketcher.Constraint("Horizontal", 1),
    Sketcher.Constraint("Vertical", 2),
    Sketcher.Constraint("Horizontal", 3),
    Sketcher.Constraint("DistanceX", 0, 2, -1, 1, Q("1.0336999 in")),
    Sketcher.Constraint("DistanceY", 0, 2, 0, 1, 59.65937),
    Sketcher.Constraint("DistanceX", 1, 1, 1, 2, 55.647898),
    Sketcher.Constraint("DistanceY", 0, 2, -1, 1, 28.304107),
])
pocket3 = body.newObject("PartDesign::Pocket", "Pocket002")
pocket3.Profile = sketch6
pocket3.Length = Q("0.09 in")

# Sketch on XY plane
sketch7 = body.newObject("Sketcher::SketchObject", "Sketch006")
sketch7.AttachmentSupport = (doc.getObject("XY_Plane"), [""])
sketch7.MapMode = "FlatFace"
sketch7.AttachmentOffset = App.Placement(App.Vector(0, 0, -29.5 * 25.4), App.Rotation())
sketch7.addGeometry([
    Part.LineSegment(App.Vector(31, 30, 0), App.Vector(31, -23, 0)),
    Part.LineSegment(App.Vector(31, -23, 0), App.Vector(-29, -23, 0)),
    Part.LineSegment(App.Vector(-29, -23, 0), App.Vector(-29, 30, 0)),
    Part.LineSegment(App.Vector(-29, 30, 0), App.Vector(31, 30, 0)),
], False)
sketch7.addConstraint([
    Sketcher.Constraint("Coincident", 0, 2, 1, 1),
    Sketcher.Constraint("Coincident", 1, 2, 2, 1),
    Sketcher.Constraint("Coincident", 2, 2, 3, 1),
    Sketcher.Constraint("Coincident", 3, 2, 0, 1),
    Sketcher.Constraint("Vertical", 0),
    Sketcher.Constraint("Horizontal", 1),
    Sketcher.Constraint("Vertical", 2),
    Sketcher.Constraint("Horizontal", 3),
    Sketcher.Constraint("DistanceY", 0, 2, 0, 1, 53.532689),
    Sketcher.Constraint("DistanceX", 1, 2, 1, 1, 60.180203),
    Sketcher.Constraint("DistanceX", -1, 1, 0, 2, 31.086751),
    Sketcher.Constraint("DistanceY", 0, 2, -1, 1, 23.463284),
])
pocket4 = body.newObject("PartDesign::Pocket", "Pocket003")
pocket4.Profile = sketch7
pocket4.Length = Q("0.09 in")
pocket4.Reversed = True

doc.recompute()
